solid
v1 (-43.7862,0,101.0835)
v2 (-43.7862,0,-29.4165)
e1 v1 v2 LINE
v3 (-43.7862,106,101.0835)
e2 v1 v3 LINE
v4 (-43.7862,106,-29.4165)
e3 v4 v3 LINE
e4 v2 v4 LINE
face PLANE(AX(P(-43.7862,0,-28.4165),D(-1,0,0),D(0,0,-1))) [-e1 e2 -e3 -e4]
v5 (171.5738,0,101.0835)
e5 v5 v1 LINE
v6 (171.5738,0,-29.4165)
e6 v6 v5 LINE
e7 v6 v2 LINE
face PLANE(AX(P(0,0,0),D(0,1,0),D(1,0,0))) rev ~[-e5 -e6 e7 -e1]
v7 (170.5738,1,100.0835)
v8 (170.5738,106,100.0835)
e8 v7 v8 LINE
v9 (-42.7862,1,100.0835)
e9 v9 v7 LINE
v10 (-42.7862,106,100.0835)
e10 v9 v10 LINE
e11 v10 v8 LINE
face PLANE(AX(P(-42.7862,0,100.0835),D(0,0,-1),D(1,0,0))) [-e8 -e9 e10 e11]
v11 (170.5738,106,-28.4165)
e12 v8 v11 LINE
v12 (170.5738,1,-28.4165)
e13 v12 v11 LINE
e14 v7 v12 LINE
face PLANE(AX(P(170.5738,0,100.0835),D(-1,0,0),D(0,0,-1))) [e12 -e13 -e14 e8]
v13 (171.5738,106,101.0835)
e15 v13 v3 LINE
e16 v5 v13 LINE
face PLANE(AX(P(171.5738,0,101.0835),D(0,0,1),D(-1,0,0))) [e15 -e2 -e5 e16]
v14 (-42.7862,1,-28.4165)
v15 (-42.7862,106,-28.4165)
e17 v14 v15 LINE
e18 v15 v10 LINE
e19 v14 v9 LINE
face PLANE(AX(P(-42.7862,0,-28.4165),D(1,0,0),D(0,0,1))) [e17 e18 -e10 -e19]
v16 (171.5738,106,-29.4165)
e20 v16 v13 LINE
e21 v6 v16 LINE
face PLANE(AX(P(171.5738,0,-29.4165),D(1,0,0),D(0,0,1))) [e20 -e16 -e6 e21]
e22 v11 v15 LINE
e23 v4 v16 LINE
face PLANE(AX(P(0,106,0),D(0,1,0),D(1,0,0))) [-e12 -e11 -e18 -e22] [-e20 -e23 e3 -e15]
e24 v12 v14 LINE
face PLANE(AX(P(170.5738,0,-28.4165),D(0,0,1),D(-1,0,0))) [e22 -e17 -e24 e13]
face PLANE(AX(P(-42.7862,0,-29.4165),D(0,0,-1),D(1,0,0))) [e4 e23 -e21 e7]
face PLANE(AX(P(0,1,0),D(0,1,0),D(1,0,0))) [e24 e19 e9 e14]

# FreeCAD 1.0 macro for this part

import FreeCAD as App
import Part
import Sketcher
Q = App.Units.Quantity

doc = App.newDocument("Part")
body = doc.addObject("PartDesign::Body", "Body")

sketch1 = body.newObject("Sketcher::SketchObject", "Sketch")
sketch1.AttachmentSupport = (doc.getObject("XZ_Plane"), [""])
sketch1.MapMode = "FlatFace"
sketch1.addGeometry(Part.LineSegment(App.Vector(171, 100, 0), App.Vector(171, -28, 0)), False)
sketch1.addGeometry(Part.LineSegment(App.Vector(171, -28, 0), App.Vector(-43, -28, 0)), False)
sketch1.addGeometry(Part.LineSegment(App.Vector(-43, -28, 0), App.Vector(-43, 100, 0)), False)
sketch1.addGeometry(Part.LineSegment(App.Vector(-43, 100, 0), App.Vector(171, 100, 0)), False)
sketch1.addConstraint(Sketcher.Constraint("Coincident", 0, 2, 1, 1))
sketch1.addConstraint(Sketcher.Constraint("Coincident", 1, 2, 2, 1))
sketch1.addConstraint(Sketcher.Constraint("Coincident", 2, 2, 3, 1))
sketch1.addConstraint(Sketcher.Constraint("Coincident", 3, 2, 0, 1))
sketch1.addConstraint(Sketcher.Constraint("Vertical", 0))
sketch1.addConstraint(Sketcher.Constraint("Horizontal", 1))
sketch1.addConstraint(Sketcher.Constraint("Vertical", 2))
sketch1.addConstraint(Sketcher.Constraint("Horizontal", 3))
sketch1.addConstraint(Sketcher.Constraint("DistanceY", 0, 2, 0, 1, Q("128.5 mm")))
sketch1.addConstraint(Sketcher.Constraint("DistanceX", 1, 2, 1, 1, Q("213.36 mm")))
sketch1.addConstraint(Sketcher.Constraint("DistanceX", -1, 1, 0, 2, Q("170.5738 mm")))
sketch1.addConstraint(Sketcher.Constraint("DistanceY", 0, 2, -1, 1, Q("28.4165 mm")))
pad1 = body.newObject("PartDesign::Pad", "Pad")
pad1.Profile = sketch1
pad1.Length = 1
pad1.Reversed = True

sketch2 = body.newObject("Sketcher::SketchObject", "Sketch001")
sketch2.AttachmentSupport = (doc.getObject("XZ_Plane"), [""])
sketch2.MapMode = "FlatFace"
sketch2.addGeometry(Part.LineSegment(App.Vector(172, -29, 0), App.Vector(-44, -29, 0)), False)
sketch2.addGeometry(Part.LineSegment(App.Vector(-44, -29, 0), App.Vector(-44, 101, 0)), False)
sketch2.addGeometry(Part.LineSegment(App.Vector(-44, 101, 0), App.Vector(172, 101, 0)), False)
sketch2.addGeometry(Part.LineSegment(App.Vector(172, 101, 0), App.Vector(172, -29, 0)), False)
sketch2.addGeometry(Part.LineSegment(App.Vector(-43, -28, 0), App.Vector(171, -28, 0)), False)
sketch2.addGeometry(Part.LineSegment(App.Vector(171, -28, 0), App.Vector(171, 100, 0)), False)
sketch2.addGeometry(Part.LineSegment(App.Vector(171, 100, 0), App.Vector(-43, 100, 0)), False)
sketch2.addGeometry(Part.LineSegment(App.Vector(-43, 100, 0), App.Vector(-43, -28, 0)), False)
sketch2.addConstraint(Sketcher.Constraint("Coincident", 0, 2, 1, 1))
sketch2.addConstraint(Sketcher.Constraint("Coincident", 1, 2, 2, 1))
sketch2.addConstraint(Sketcher.Constraint("Coincident", 2, 2, 3, 1))
sketch2.addConstraint(Sketcher.Constraint("Coincident", 3, 2, 0, 1))
sketch2.addConstraint(Sketcher.Constraint("Coincident", 4, 2, 5, 1))
sketch2.addConstraint(Sketcher.Constraint("Coincident", 5, 2, 6, 1))
sketch2.addConstraint(Sketcher.Constraint("Coincident", 6, 2, 7, 1))
sketch2.addConstraint(Sketcher.Constraint("Coincident", 7, 2, 4, 1))
sketch2.addConstraint(Sketcher.Constraint("Horizontal", 0))
sketch2.addConstraint(Sketcher.Constraint("Vertical", 1))
sketch2.addConstraint(Sketcher.Constraint("Horizontal", 2))
sketch2.addConstraint(Sketcher.Constraint("Vertical", 3))
sketch2.addConstraint(Sketcher.Constraint("Horizontal", 4))
sketch2.addConstraint(Sketcher.Constraint("Vertical", 5))
sketch2.addConstraint(Sketcher.Constraint("Horizontal", 6))
sketch2.addConstraint(Sketcher.Constraint("Vertical", 7))
sketch2.addConstraint(Sketcher.Constraint("DistanceY", 1, 1, 1, 2, Q("130.5 mm")))
sketch2.addConstraint(Sketcher.Constraint("DistanceY", 5, 1, 5, 2, Q("128.5 mm")))
sketch2.addConstraint(Sketcher.Constraint("DistanceX", 4, 2, 3, 2, Q("1 mm")))
sketch2.addConstraint(Sketcher.Constraint("DistanceY", 3, 2, 4, 2, Q("1 mm")))
sketch2.addConstraint(Sketcher.Constraint("DistanceX", 1, 2, 6, 2, Q("1 mm")))
sketch2.addConstraint(Sketcher.Constraint("DistanceX", 4, 1, 4, 2, Q("213.36 mm")))
sketch2.addConstraint(Sketcher.Constraint("DistanceX", 0, 2, -1, 1, Q("43.7862 mm")))
sketch2.addConstraint(Sketcher.Constraint("DistanceY", 0, 2, -1, 1, Q("29.4165 mm")))
pad2 = body.newObject("PartDesign::Pad", "Pad001")
pad2.Profile = sketch2
pad2.Length = 106
pad2.Reversed = True

doc.recompute()
